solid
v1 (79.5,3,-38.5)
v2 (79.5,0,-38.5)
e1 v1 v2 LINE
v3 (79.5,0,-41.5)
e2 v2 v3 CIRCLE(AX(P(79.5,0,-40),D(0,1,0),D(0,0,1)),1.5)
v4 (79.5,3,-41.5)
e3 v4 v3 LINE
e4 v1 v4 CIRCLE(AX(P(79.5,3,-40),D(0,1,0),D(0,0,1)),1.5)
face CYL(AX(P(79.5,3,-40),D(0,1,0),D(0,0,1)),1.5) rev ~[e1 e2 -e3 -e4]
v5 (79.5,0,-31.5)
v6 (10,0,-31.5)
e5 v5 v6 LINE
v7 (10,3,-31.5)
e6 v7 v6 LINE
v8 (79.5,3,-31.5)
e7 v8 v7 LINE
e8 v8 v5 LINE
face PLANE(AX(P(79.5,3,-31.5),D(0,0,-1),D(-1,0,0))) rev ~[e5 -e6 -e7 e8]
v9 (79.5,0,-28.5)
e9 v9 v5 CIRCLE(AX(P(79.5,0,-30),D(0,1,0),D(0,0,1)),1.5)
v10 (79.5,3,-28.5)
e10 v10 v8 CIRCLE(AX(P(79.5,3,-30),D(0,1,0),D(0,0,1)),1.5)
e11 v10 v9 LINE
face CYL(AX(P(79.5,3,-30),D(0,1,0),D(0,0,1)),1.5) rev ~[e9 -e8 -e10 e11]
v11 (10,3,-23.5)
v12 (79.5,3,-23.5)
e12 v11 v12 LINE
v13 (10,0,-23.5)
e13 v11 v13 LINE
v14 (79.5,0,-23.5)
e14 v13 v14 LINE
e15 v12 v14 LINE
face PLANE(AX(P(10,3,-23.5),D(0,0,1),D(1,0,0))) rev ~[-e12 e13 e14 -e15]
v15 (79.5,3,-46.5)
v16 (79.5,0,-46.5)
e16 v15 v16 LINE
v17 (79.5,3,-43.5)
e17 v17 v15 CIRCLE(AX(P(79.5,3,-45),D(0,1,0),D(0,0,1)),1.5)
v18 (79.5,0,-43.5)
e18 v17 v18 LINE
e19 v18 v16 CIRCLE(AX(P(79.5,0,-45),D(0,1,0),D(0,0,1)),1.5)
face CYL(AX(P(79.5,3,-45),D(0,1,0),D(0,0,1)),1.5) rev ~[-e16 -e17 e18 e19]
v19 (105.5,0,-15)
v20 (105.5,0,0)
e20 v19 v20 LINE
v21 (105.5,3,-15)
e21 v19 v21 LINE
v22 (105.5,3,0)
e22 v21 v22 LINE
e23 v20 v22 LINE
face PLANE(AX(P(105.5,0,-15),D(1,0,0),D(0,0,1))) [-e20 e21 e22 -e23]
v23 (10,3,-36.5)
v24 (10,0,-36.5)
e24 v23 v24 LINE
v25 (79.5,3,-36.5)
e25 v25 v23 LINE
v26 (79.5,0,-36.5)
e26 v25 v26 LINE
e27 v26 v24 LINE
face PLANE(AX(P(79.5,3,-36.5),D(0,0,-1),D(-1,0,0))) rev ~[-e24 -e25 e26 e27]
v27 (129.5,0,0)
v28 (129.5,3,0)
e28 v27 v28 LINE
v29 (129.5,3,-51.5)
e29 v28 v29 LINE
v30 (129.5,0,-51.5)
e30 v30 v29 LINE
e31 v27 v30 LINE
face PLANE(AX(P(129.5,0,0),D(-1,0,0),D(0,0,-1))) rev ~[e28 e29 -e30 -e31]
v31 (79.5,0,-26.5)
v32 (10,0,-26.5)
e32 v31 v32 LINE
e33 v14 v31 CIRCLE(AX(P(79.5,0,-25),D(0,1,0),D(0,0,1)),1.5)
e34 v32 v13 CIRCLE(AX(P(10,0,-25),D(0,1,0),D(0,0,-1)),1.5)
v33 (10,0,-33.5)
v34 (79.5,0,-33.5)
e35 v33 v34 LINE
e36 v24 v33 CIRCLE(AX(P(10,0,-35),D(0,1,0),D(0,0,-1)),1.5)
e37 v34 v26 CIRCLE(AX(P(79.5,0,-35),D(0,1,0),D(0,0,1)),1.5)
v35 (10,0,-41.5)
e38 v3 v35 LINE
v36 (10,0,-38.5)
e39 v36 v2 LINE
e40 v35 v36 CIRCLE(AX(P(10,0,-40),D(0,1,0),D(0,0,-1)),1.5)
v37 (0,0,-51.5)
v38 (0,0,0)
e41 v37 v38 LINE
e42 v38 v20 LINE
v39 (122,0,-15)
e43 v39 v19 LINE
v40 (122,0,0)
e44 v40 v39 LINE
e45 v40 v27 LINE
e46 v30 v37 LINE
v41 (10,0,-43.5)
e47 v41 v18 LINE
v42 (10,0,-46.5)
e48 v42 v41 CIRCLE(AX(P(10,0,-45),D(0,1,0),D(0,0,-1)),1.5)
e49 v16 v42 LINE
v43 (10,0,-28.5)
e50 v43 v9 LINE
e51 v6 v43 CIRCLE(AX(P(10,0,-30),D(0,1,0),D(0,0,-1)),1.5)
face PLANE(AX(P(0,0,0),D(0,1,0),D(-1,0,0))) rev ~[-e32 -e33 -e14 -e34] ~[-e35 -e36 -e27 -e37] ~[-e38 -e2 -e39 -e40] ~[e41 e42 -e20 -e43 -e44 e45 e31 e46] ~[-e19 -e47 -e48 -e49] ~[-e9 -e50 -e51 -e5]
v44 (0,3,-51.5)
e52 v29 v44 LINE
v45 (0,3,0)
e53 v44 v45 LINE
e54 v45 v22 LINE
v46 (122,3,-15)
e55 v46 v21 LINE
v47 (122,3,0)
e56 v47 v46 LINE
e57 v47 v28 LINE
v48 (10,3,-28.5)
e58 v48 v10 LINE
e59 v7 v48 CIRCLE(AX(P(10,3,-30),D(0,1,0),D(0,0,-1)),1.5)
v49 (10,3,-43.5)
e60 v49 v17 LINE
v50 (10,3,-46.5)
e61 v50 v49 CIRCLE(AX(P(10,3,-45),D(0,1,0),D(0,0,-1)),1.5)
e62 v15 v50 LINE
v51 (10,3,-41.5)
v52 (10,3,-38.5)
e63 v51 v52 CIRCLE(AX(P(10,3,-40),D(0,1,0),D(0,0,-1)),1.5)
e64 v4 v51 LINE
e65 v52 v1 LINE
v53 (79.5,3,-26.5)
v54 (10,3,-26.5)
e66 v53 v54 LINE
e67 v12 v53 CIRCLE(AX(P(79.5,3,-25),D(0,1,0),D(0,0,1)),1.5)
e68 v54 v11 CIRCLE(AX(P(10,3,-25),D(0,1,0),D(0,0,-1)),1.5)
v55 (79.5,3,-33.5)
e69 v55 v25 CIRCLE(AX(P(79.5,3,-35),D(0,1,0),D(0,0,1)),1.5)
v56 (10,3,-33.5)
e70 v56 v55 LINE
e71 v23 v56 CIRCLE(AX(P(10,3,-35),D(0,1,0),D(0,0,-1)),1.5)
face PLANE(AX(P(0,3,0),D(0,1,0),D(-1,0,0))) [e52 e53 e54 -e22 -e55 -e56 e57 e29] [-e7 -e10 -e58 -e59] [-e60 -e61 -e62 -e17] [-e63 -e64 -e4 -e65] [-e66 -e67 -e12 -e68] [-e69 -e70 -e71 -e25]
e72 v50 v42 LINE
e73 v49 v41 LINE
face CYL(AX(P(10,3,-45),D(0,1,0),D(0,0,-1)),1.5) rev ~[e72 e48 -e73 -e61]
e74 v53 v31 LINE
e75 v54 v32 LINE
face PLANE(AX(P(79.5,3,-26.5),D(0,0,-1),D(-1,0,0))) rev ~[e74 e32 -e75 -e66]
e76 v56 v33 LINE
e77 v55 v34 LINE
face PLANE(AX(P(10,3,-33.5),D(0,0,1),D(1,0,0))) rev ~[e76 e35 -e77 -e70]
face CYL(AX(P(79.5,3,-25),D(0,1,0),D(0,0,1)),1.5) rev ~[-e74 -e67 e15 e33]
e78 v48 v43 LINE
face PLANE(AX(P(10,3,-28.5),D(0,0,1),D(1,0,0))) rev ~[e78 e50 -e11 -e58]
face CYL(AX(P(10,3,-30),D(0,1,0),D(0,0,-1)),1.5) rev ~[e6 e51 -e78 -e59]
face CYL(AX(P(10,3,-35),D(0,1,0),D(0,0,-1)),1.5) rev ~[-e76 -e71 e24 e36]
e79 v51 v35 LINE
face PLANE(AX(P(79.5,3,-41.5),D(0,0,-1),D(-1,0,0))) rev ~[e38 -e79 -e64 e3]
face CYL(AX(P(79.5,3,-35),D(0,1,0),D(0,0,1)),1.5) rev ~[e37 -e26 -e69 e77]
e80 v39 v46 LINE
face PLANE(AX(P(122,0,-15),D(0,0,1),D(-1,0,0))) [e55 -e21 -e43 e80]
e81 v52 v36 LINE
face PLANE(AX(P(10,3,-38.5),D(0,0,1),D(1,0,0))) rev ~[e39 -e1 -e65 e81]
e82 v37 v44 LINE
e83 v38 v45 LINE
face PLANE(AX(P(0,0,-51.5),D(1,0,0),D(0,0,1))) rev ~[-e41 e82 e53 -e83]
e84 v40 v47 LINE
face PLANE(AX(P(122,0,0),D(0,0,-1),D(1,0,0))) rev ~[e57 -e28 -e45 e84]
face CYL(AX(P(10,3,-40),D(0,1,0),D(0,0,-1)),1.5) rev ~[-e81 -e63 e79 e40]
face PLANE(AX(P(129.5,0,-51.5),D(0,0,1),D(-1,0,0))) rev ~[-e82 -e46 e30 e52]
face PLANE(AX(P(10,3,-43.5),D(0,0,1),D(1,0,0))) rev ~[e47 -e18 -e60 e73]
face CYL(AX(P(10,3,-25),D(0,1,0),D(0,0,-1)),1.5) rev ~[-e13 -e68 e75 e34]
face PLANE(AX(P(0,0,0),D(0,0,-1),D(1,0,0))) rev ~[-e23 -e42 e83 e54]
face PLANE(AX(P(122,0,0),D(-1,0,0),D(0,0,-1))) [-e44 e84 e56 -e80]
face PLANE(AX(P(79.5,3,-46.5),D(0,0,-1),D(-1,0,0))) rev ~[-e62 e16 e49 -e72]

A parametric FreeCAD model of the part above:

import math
import FreeCAD as App
import Part
import Sketcher
from FreeCAD import Vector


def add_polygon(sketch, points):
    """Adds a closed chain of lines whose ends are joined by coincident constraints."""
    first, n = sketch.GeometryCount, len(points)
    for a, b in zip(points, points[1:] + points[:1]):
        sketch.addGeometry(Part.LineSegment(App.Vector(*a, 0), App.Vector(*b, 0)), False)
    for i in range(n):
        sketch.addConstraint(Sketcher.Constraint("Coincident", first + i, 2, first + (i + 1) % n, 1))

doc = App.newDocument("Part")
body = doc.addObject("PartDesign::Body", "Body")

# Sketch on XZ plane
sketch1 = doc.addObject("Sketcher::SketchObject", "Sketch")
body.addObject(sketch1)
sketch1.AttachmentSupport = (doc.XZ_Plane, [""])
sketch1.MapMode = "FlatFace"
add_polygon(sketch1, [(0, -52), (0, 0), (106, 0), (106, -15), (122, -15), (122, 0), (130, 0), (130, -52)])  # lines 0-7
sketch1.addConstraint(Sketcher.Constraint("Vertical", 0))
sketch1.addConstraint(Sketcher.Constraint("Horizontal", 1))
sketch1.addConstraint(Sketcher.Constraint("Vertical", 2))
sketch1.addConstraint(Sketcher.Constraint("Horizontal", 3))
sketch1.addConstraint(Sketcher.Constraint("Vertical", 4))
sketch1.addConstraint(Sketcher.Constraint("Horizontal", 5))
sketch1.addConstraint(Sketcher.Constraint("Vertical", 6))
sketch1.addConstraint(Sketcher.Constraint("Horizontal", 7))
sketch1.addConstraint(Sketcher.Constraint("Coincident", 0, 2, -1, 1))
sketch1.addConstraint(Sketcher.Constraint("PointOnObject", 4, 2, -1))
sketch1.addConstraint(Sketcher.Constraint("DistanceY", 2, 2, 2, 1, 15.0))
sketch1.addConstraint(Sketcher.Constraint("DistanceX", 3, 1, 3, 2, 16.5))
sketch1.addConstraint(Sketcher.Constraint("DistanceX", 5, 1, 5, 2, 7.5))
sketch1.addConstraint(Sketcher.Constraint("DistanceX", 7, 2, 7, 1, 129.5))
sketch1.addConstraint(Sketcher.Constraint("DistanceY", 0, 1, 0, 2, 51.5))
pad1 = doc.addObject("PartDesign::Pad", "Pad")
body.addObject(pad1)
pad1.Profile = sketch1
pad1.Length = 3
pad1.Reversed = True

# Sketch on XZ plane
sketch2 = doc.addObject("Sketcher::SketchObject", "Sketch001")
body.addObject(sketch2)
sketch2.AttachmentSupport = (doc.XZ_Plane, [""])
sketch2.MapMode = "FlatFace"
sketch2.AttachmentOffset = App.Placement(Vector(0, 0, -3), App.Rotation())
sketch2.addGeometry(Part.ArcOfCircle(Part.Circle(Vector(10, -45, 0), Vector(0, 0, 1), 1.5), math.radians(90), math.radians(270)), False)
sketch2.addGeometry(Part.LineSegment(Vector(10, -43.5, 0), Vector(79.5, -43.5, 0)), False)
sketch2.addGeometry(Part.ArcOfCircle(Part.Circle(Vector(79.5, -45, 0), Vector(0, 0, 1), 1.5), math.radians(-90), math.radians(90)), False)
sketch2.addGeometry(Part.LineSegment(Vector(79.5, -46.5, 0), Vector(10, -46.5, 0)), False)
sketch2.addConstraint(Sketcher.Constraint("Tangent", 0, 1, 1, 1))
sketch2.addConstraint(Sketcher.Constraint("Tangent", 1, 2, 2, 2))
sketch2.addConstraint(Sketcher.Constraint("Tangent", 2, 1, 3, 1))
sketch2.addConstraint(Sketcher.Constraint("Tangent", 3, 2, 0, 2))
sketch2.addConstraint(Sketcher.Constraint("Horizontal", 1))
sketch2.addConstraint(Sketcher.Constraint("Horizontal", 3))
sketch2.addConstraint(Sketcher.Constraint("Radius", 0, 1.5))
sketch2.addConstraint(Sketcher.Constraint("DistanceX", -1, 1, 0, 3, 10.0))
sketch2.addConstraint(Sketcher.Constraint("DistanceX", 1, 1, 1, 2, 69.5))
sketch2.addConstraint(Sketcher.Constraint("DistanceY", 0, 3, -1, 1, 45.0))
pocket1 = doc.addObject("PartDesign::Pocket", "Pocket")
body.addObject(pocket1)
pocket1.Profile = sketch2
pocket1.Type = "ThroughAll"
pocket1.Reversed = True
doc.recompute()

linearpattern = doc.addObject("PartDesign::LinearPattern", "LinearPattern")
body.addObject(linearpattern)
linearpattern.Originals = [pocket1]
linearpattern.Direction = (doc.Z_Axis, [""])
linearpattern.Mode = "offset"
linearpattern.Offset = 5
linearpattern.Occurrences = 5
body.Tip = linearpattern

doc.recompute()
